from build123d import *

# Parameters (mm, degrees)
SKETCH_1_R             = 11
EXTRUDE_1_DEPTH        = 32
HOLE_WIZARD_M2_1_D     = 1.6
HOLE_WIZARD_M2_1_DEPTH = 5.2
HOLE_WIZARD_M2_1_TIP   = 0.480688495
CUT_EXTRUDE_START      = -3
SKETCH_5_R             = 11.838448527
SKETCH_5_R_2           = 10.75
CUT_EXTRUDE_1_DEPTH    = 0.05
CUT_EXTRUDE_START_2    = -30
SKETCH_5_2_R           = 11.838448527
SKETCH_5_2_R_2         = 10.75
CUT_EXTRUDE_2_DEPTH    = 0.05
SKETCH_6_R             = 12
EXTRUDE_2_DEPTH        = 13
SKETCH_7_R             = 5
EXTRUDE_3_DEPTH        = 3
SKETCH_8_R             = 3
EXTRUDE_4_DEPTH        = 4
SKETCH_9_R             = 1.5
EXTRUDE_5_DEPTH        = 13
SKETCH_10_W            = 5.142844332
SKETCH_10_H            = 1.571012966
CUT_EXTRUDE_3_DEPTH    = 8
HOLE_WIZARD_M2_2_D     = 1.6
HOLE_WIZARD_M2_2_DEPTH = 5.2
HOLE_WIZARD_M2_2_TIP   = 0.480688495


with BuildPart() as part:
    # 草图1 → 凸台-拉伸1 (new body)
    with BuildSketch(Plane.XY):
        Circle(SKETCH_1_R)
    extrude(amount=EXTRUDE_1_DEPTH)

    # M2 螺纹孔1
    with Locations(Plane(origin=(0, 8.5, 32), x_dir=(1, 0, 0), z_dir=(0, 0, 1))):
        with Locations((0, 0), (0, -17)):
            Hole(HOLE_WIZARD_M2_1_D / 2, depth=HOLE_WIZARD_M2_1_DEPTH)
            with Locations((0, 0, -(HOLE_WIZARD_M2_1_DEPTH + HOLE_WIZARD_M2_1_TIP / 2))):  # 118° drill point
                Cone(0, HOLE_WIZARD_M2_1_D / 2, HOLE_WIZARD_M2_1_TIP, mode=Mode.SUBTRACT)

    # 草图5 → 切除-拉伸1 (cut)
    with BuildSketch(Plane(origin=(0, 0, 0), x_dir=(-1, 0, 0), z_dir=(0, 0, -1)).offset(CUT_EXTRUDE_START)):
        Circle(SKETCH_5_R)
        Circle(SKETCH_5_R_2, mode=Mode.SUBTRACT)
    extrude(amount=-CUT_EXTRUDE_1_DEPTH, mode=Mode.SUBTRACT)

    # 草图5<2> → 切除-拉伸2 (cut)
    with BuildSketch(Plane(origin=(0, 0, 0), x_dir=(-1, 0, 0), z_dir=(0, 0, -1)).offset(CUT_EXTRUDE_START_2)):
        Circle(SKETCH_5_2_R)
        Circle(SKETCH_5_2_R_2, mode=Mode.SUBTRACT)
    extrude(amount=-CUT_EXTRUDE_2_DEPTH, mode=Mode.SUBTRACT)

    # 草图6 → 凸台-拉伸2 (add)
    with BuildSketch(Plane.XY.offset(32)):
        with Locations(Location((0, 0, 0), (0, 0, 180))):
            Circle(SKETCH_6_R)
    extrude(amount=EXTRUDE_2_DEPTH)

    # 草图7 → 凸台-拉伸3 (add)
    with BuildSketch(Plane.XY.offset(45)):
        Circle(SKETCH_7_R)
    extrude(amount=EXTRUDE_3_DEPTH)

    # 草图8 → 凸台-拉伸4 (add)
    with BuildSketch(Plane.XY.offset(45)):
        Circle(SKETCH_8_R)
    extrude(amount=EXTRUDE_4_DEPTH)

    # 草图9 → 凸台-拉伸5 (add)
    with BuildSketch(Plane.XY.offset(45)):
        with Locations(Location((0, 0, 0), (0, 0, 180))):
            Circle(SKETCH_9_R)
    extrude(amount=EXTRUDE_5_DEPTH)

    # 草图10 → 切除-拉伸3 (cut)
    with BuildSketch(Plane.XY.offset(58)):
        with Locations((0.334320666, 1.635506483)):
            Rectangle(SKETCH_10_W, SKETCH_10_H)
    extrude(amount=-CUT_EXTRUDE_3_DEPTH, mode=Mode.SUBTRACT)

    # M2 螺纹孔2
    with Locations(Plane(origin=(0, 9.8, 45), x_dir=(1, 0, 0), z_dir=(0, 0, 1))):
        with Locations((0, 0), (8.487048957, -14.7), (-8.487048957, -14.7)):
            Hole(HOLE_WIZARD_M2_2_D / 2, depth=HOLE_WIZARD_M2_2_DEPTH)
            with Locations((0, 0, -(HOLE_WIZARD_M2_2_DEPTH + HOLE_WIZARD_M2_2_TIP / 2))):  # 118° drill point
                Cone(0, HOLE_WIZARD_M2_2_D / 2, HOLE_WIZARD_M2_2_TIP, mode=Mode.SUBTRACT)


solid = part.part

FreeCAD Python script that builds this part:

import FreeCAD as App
import Part
import Sketcher

doc = App.newDocument("Part")
body = doc.addObject("PartDesign::Body", "Body")

sketch1 = body.newObject("Sketcher::SketchObject", "Sketch")
sketch1.AttachmentSupport = (doc.getObject("XY_Plane"), [""])
sketch1.MapMode = "FlatFace"
sketch1.addGeometry(Part.Circle(App.Vector(0, 0, 0), App.Vector(0, 0, 1), 11), False)
sketch1.addConstraint([
    Sketcher.Constraint("Coincident", 0, 3, -1, 1),
    Sketcher.Constraint("Diameter", 0, 22.0),
])
pad1 = body.newObject("PartDesign::Pad", "Pad")
pad1.Profile = sketch1
pad1.Length = 32

sketch2 = body.newObject("Sketcher::SketchObject", "Sketch001")
sketch2.AttachmentSupport = (doc.getObject("XY_Plane"), [""])
sketch2.MapMode = "FlatFace"
sketch2.AttachmentOffset = App.Placement(App.Vector(0, 0, 32), App.Rotation())
sketch2.addGeometry([
    Part.Circle(App.Vector(0, 8.5, 0), App.Vector(0, 0, 1), 0.8),
    Part.Circle(App.Vector(0, -8.5, 0), App.Vector(0, 0, 1), 0.8),
], False)
sketch2.addConstraint([
    Sketcher.Constraint("Equal", 0, 1),
    Sketcher.Constraint("Symmetric", 0, 3, 1, 3, -1, 1),
    Sketcher.Constraint("PointOnObject", 0, 3, -2),
    Sketcher.Constraint("Diameter", 0, 1.6),
    Sketcher.Constraint("DistanceY", 1, 3, 0, 3, 17.0),
])
doc.recompute()
hole = body.newObject("PartDesign::Hole", "Hole")
hole.Profile = sketch2
hole.ThreadType = "None"
hole.Diameter = 1.6
hole.DepthType = "Dimension"
hole.Depth = 5.2
hole.DrillPoint = "Angled"
hole.DrillPointAngle = 118

sketch3 = body.newObject("Sketcher::SketchObject", "Sketch002")
sketch3.AttachmentSupport = (doc.getObject("XY_Plane"), [""])
sketch3.MapMode = "FlatFace"
sketch3.AttachmentOffset = App.Placement(App.Vector(0, 0, 3), App.Rotation())
sketch3.addGeometry([
    Part.Circle(App.Vector(0, 0, 0), App.Vector(0, 0, 1), 12),
    Part.Circle(App.Vector(0, 0, 0), App.Vector(0, 0, 1), 11),
], False)
sketch3.addConstraint([
    Sketcher.Constraint("Coincident", 0, 3, -1, 1),
    Sketcher.Constraint("Coincident", 1, 3, -1, 1),
    Sketcher.Constraint("Diameter", 1, 21.5),
    Sketcher.Constraint("Diameter", 0, 23.676897),
])
pocket1 = body.newObject("PartDesign::Pocket", "Pocket")
pocket1.Profile = sketch3
pocket1.Length = 0.05
pocket1.Reversed = True

sketch4 = body.newObject("Sketcher::SketchObject", "Sketch003")
sketch4.AttachmentSupport = (doc.getObject("XY_Plane"), [""])
sketch4.MapMode = "FlatFace"
sketch4.AttachmentOffset = App.Placement(App.Vector(0, 0, 30), App.Rotation())
sketch4.addGeometry([
    Part.Circle(App.Vector(0, 0, 0), App.Vector(0, 0, 1), 12),
    Part.Circle(App.Vector(0, 0, 0), App.Vector(0, 0, 1), 11),
], False)
sketch4.addConstraint([
    Sketcher.Constraint("Coincident", 0, 3, -1, 1),
    Sketcher.Constraint("Coincident", 1, 3, -1, 1),
    Sketcher.Constraint("Diameter", 1, 21.5),
    Sketcher.Constraint("Diameter", 0, 23.676897),
])
pocket2 = body.newObject("PartDesign::Pocket", "Pocket001")
pocket2.Profile = sketch4
pocket2.Length = 0.05
pocket2.Reversed = True

sketch5 = body.newObject("Sketcher::SketchObject", "Sketch004")
sketch5.AttachmentSupport = (doc.getObject("XY_Plane"), [""])
sketch5.MapMode = "FlatFace"
sketch5.AttachmentOffset = App.Placement(App.Vector(0, 0, 32), App.Rotation())
sketch5.addGeometry(Part.Circle(App.Vector(0, 0, 0), App.Vector(0, 0, 1), 12), False)
sketch5.addConstraint([
    Sketcher.Constraint("Coincident", 0, 3, -1, 1),
    Sketcher.Constraint("Diameter", 0, 24.0),
])
pad2 = body.newObject("PartDesign::Pad", "Pad001")
pad2.Profile = sketch5
pad2.Length = 13

sketch6 = body.newObject("Sketcher::SketchObject", "Sketch005")
sketch6.AttachmentSupport = (doc.getObject("XY_Plane"), [""])
sketch6.MapMode = "FlatFace"
sketch6.AttachmentOffset = App.Placement(App.Vector(0, 0, 45), App.Rotation())
sketch6.addGeometry(Part.Circle(App.Vector(0, 0, 0), App.Vector(0, 0, 1), 5), False)
sketch6.addConstraint([
    Sketcher.Constraint("Coincident", 0, 3, -1, 1),
    Sketcher.Constraint("Diameter", 0, 10.0),
])
pad3 = body.newObject("PartDesign::Pad", "Pad002")
pad3.Profile = sketch6
pad3.Length = 3

sketch7 = body.newObject("Sketcher::SketchObject", "Sketch006")
sketch7.AttachmentSupport = (doc.getObject("XY_Plane"), [""])
sketch7.MapMode = "FlatFace"
sketch7.AttachmentOffset = App.Placement(App.Vector(0, 0, 45), App.Rotation())
sketch7.addGeometry(Part.Circle(App.Vector(0, 0, 0), App.Vector(0, 0, 1), 3), False)
sketch7.addConstraint([
    Sketcher.Constraint("Coincident", 0, 3, -1, 1),
    Sketcher.Constraint("Diameter", 0, 6.0),
])
pad4 = body.newObject("PartDesign::Pad", "Pad003")
pad4.Profile = sketch7
pad4.Length = 4

sketch8 = body.newObject("Sketcher::SketchObject", "Sketch007")
sketch8.AttachmentSupport = (doc.getObject("XY_Plane"), [""])
sketch8.MapMode = "FlatFace"
sketch8.AttachmentOffset = App.Placement(App.Vector(0, 0, 45), App.Rotation())
sketch8.addGeometry(Part.Circle(App.Vector(0, 0, 0), App.Vector(0, 0, 1), 1.5), False)
sketch8.addConstraint([
    Sketcher.Constraint("Coincident", 0, 3, -1, 1),
    Sketcher.Constraint("Diameter", 0, 3.0),
])
pad5 = body.newObject("PartDesign::Pad", "Pad004")
pad5.Profile = sketch8
pad5.Length = 13

sketch9 = body.newObject("Sketcher::SketchObject", "Sketch008")
sketch9.AttachmentSupport = (doc.getObject("XY_Plane"), [""])
sketch9.MapMode = "FlatFace"
sketch9.AttachmentOffset = App.Placement(App.Vector(0, 0, 58), App.Rotation())
sketch9.addGeometry([
    Part.LineSegment(App.Vector(-2.2, 2.4, 0), App.Vector(-2.2, 0.8, 0)),
    Part.LineSegment(App.Vector(-2.2, 0.8, 0), App.Vector(2.9, 0.8, 0)),
    Part.LineSegment(App.Vector(2.9, 0.8, 0), App.Vector(2.9, 2.4, 0)),
    Part.LineSegment(App.Vector(2.9, 2.4, 0), App.Vector(-2.2, 2.4, 0)),
], False)
sketch9.addConstraint([
    Sketcher.Constraint("Coincident", 0, 2, 1, 1),
    Sketcher.Constraint("Coincident", 1, 2, 2, 1),
    Sketcher.Constraint("Coincident", 2, 2, 3, 1),
    Sketcher.Constraint("Coincident", 3, 2, 0, 1),
    Sketcher.Constraint("Vertical", 0),
    Sketcher.Constraint("Horizontal", 1),
    Sketcher.Constraint("Vertical", 2),
    Sketcher.Constraint("Horizontal", 3),
    Sketcher.Constraint("DistanceY", -1, 1, 0, 2, 0.85),
    Sketcher.Constraint("DistanceX", 0, 2, -1, 1, 2.237102),
    Sketcher.Constraint("DistanceX", 1, 1, 1, 2, 5.142844),
    Sketcher.Constraint("DistanceY", 0, 2, 0, 1, 1.571013),
])
pocket3 = body.newObject("PartDesign::Pocket", "Pocket002")
pocket3.Profile = sketch9
pocket3.Length = 8

sketch10 = body.newObject("Sketcher::SketchObject", "Sketch009")
sketch10.AttachmentSupport = (doc.getObject("XY_Plane"), [""])
sketch10.MapMode = "FlatFace"
sketch10.AttachmentOffset = App.Placement(App.Vector(0, 0, 45), App.Rotation())
sketch10.addGeometry([
    Part.Circle(App.Vector(0, 9.8, 0), App.Vector(0, 0, 1), 0.8),
    Part.Circle(App.Vector(8.5, -4.9, 0), App.Vector(0, 0, 1), 0.8),
    Part.Circle(App.Vector(-8.5, -4.9, 0), App.Vector(0, 0, 1), 0.8),
], False)
sketch10.addConstraint([
    Sketcher.Constraint("Equal", 0, 1),
    Sketcher.Constraint("Equal", 1, 2),
    Sketcher.Constraint("Symmetric", 1, 3, 2, 3, -2),
    Sketcher.Constraint("PointOnObject", 0, 3, -2),
    Sketcher.Constraint("Diameter", 0, 1.6),
    Sketcher.Constraint("DistanceY", -1, 1, 0, 3, 9.8),
    Sketcher.Constraint("DistanceY", 1, 3, -1, 1, 4.9),
    Sketcher.Constraint("DistanceX", -1, 1, 1, 3, 8.487049),
])
doc.recompute()
hole2 = body.newObject("PartDesign::Hole", "Hole001")
hole2.Profile = sketch10
hole2.ThreadType = "None"
hole2.Diameter = 1.6
hole2.DepthType = "Dimension"
hole2.Depth = 5.2
hole2.DrillPoint = "Angled"
hole2.DrillPointAngle = 118

doc.recompute()
